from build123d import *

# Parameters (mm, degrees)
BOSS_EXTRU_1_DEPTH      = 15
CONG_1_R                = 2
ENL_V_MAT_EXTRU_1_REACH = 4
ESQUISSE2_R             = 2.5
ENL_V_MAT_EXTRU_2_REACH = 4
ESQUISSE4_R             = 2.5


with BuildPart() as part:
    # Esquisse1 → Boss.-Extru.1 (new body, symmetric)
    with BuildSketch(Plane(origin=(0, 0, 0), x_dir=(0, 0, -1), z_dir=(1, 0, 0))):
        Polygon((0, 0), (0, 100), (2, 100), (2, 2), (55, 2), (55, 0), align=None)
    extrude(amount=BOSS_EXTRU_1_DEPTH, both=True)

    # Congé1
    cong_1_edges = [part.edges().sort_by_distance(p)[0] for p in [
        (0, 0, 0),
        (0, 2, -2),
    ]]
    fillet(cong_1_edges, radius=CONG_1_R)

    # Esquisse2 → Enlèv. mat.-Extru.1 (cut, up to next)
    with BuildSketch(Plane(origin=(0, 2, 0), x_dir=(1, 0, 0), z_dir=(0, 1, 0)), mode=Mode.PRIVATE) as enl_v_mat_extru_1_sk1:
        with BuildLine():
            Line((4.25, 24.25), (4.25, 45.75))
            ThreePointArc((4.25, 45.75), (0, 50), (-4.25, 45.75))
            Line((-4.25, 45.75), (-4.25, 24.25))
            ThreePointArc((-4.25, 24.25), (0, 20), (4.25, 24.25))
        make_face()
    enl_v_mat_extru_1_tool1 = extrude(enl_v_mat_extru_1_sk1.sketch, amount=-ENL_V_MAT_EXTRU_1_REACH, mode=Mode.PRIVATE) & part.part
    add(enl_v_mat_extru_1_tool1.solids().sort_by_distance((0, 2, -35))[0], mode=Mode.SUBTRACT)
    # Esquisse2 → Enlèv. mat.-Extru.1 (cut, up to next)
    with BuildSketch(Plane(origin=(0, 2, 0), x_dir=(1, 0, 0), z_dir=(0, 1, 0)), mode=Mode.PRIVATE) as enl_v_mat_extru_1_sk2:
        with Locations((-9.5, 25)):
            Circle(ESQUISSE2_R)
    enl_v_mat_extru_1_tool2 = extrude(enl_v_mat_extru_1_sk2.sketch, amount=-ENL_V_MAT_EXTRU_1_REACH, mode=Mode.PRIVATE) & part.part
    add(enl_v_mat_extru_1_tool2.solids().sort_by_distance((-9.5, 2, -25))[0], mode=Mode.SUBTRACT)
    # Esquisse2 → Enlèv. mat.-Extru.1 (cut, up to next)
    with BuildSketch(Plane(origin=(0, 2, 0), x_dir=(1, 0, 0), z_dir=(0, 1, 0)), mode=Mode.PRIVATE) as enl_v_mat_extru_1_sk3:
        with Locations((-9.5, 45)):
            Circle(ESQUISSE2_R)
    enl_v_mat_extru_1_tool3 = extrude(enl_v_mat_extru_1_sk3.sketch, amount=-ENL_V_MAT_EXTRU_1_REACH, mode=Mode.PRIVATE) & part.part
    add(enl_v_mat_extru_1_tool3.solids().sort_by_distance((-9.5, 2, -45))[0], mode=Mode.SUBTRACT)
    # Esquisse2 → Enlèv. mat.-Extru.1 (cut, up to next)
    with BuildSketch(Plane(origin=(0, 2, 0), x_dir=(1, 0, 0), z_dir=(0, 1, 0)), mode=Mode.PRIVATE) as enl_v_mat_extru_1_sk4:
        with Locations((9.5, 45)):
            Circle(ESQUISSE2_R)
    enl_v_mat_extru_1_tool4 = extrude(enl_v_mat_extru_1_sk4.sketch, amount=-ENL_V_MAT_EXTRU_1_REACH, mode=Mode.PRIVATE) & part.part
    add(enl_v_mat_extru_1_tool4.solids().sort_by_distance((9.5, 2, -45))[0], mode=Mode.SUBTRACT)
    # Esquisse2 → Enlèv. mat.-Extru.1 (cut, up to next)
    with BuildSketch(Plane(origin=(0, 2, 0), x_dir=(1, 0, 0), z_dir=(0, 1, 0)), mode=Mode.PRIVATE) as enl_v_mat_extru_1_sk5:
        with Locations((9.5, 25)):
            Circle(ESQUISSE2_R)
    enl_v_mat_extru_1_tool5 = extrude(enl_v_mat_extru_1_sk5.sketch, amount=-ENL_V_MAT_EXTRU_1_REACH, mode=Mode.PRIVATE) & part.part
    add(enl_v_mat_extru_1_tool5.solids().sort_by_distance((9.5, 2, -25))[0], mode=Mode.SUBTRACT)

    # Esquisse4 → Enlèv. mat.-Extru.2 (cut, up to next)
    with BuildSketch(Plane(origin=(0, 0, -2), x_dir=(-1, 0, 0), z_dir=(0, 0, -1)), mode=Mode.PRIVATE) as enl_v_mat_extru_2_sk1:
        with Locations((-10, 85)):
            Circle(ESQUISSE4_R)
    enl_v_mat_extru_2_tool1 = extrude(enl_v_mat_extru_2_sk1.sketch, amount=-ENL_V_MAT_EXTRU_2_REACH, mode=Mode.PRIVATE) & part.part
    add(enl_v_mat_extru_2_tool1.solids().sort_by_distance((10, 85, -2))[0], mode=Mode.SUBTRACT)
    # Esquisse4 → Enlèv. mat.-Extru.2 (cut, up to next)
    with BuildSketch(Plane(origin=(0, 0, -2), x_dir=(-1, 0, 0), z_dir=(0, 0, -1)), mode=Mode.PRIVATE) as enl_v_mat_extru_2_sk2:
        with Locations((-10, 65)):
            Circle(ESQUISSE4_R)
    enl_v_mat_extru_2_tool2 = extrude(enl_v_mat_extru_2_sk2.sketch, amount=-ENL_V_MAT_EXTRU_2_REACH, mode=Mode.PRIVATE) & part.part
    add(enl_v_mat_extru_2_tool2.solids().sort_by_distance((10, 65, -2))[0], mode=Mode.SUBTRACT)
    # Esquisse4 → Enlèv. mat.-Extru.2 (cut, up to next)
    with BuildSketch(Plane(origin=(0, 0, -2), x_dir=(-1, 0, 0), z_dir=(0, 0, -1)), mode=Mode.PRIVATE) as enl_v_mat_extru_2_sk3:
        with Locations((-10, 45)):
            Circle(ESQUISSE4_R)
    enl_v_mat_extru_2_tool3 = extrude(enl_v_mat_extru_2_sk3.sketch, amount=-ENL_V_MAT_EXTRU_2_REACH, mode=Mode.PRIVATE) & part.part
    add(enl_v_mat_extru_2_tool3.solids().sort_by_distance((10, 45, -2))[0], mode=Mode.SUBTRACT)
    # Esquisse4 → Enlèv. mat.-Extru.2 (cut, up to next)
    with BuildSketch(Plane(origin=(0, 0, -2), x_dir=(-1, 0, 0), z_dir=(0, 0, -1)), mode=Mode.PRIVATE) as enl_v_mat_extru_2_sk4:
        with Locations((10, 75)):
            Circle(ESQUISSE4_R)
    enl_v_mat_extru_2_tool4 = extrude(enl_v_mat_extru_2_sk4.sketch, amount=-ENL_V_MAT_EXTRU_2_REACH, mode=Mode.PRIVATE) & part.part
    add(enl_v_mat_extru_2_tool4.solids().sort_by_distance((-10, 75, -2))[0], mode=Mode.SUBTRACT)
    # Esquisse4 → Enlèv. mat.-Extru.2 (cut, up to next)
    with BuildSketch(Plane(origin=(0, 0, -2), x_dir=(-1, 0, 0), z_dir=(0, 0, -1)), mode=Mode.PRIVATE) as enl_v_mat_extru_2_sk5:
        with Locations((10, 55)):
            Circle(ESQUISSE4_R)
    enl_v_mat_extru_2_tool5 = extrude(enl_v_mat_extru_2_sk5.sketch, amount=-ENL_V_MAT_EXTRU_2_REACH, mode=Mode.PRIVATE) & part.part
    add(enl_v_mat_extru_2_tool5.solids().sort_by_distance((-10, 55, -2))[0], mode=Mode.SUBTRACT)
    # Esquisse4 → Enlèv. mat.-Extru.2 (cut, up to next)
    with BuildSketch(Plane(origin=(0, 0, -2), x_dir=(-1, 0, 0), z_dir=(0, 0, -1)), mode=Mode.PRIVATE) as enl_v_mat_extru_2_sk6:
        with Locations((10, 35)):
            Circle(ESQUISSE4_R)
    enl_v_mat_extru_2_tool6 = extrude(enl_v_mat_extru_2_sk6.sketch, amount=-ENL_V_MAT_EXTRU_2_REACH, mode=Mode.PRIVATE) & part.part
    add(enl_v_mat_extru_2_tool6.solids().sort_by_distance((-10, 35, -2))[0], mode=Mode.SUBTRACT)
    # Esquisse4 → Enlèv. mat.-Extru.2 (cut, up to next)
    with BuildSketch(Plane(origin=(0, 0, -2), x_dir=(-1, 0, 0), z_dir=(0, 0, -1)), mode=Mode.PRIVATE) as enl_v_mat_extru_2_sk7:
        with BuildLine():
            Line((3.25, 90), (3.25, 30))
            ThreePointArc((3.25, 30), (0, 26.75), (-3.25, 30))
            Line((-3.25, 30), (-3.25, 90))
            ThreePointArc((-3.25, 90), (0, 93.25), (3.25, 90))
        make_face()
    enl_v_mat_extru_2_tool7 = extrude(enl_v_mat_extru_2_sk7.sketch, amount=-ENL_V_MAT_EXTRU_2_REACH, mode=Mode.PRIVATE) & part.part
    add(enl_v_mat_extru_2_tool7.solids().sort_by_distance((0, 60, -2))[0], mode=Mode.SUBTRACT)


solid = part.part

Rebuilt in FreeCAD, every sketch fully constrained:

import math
import FreeCAD as App
import Part
import Sketcher


def edges_at(feature, points):
    """Names of the edges that pass closest to the given points."""
    edges = feature.Shape.Edges
    near = lambda p: min(range(len(edges)), key=lambda i: edges[i].distToShape(Part.Vertex(*p))[0])
    return sorted({f"Edge{near(p) + 1}" for p in points})


def add_polygon(sketch, points):
    """Adds a closed chain of lines whose ends are joined by coincident constraints."""
    first, n = sketch.GeometryCount, len(points)
    for a, b in zip(points, points[1:] + points[:1]):
        sketch.addGeometry(Part.LineSegment(App.Vector(*a, 0), App.Vector(*b, 0)), False)
    for i in range(n):
        sketch.addConstraint(Sketcher.Constraint("Coincident", first + i, 2, first + (i + 1) % n, 1))

doc = App.newDocument("Part")
body = doc.addObject("PartDesign::Body", "Body")

# Sketch on YZ plane
sketch1 = body.newObject("Sketcher::SketchObject", "Sketch")
sketch1.AttachmentSupport = (doc.getObject("YZ_Plane"), [""])
sketch1.MapMode = "FlatFace"
add_polygon(sketch1, [(100, 0), (0, 0), (0, -55), (2, -55), (2, -2), (100, -2)])  # lines 0-5
sketch1.addConstraint([
    Sketcher.Constraint("Horizontal", 0),
    Sketcher.Constraint("Vertical", 1),
    Sketcher.Constraint("Horizontal", 2),
    Sketcher.Constraint("Vertical", 3),
    Sketcher.Constraint("Horizontal", 4),
    Sketcher.Constraint("Vertical", 5),
    Sketcher.Constraint("Coincident", 0, 2, -1, 1),
    Sketcher.Constraint("Equal", 2, 5),
    Sketcher.Constraint("DistanceX", 0, 2, 0, 1, 100.0),
    Sketcher.Constraint("DistanceX", 2, 1, 2, 2, 2.0),
    Sketcher.Constraint("DistanceY", 1, 2, 1, 1, 55.0),
])
pad1 = body.newObject("PartDesign::Pad", "Pad")
pad1.Profile = sketch1
pad1.Length = 30
pad1.Midplane = True
doc.recompute()

fillet = body.newObject("PartDesign::Fillet", "Fillet")
fillet.Base = (pad1, edges_at(pad1, [(0, 0, 0), (0, 2, -2)]))
fillet.Radius = 2

# Sketch on XZ plane
sketch2 = body.newObject("Sketcher::SketchObject", "Sketch001")
sketch2.AttachmentSupport = (doc.getObject("XZ_Plane"), [""])
sketch2.MapMode = "FlatFace"
sketch2.AttachmentOffset = App.Placement(App.Vector(0, 0, -2), App.Rotation())
sketch2.addGeometry([
    Part.LineSegment(App.Vector(4.2, -24.2, 0), App.Vector(4.2, -45.8, 0)),
    Part.ArcOfCircle(Part.Circle(App.Vector(0, -45.8, 0), App.Vector(0, 0, 1), 4.2), math.radians(180), math.radians(360)),
    Part.LineSegment(App.Vector(-4.2, -45.8, 0), App.Vector(-4.2, -24.2, 0)),
    Part.ArcOfCircle(Part.Circle(App.Vector(0, -24.2, 0), App.Vector(0, 0, 1), 4.2), math.radians(0), math.radians(180)),
], False)
sketch2.addConstraint([
    Sketcher.Constraint("Tangent", 0, 2, 1, 2),
    Sketcher.Constraint("Tangent", 1, 1, 2, 1),
    Sketcher.Constraint("Tangent", 2, 2, 3, 2),
    Sketcher.Constraint("Tangent", 3, 1, 0, 1),
    Sketcher.Constraint("Vertical", 0),
    Sketcher.Constraint("Vertical", 2),
    Sketcher.Constraint("PointOnObject", 1, 3, -2),
    Sketcher.Constraint("Radius", 1, 4.25),
    Sketcher.Constraint("DistanceY", 0, 2, 0, 1, 21.5),
    Sketcher.Constraint("DistanceY", 1, 3, -1, 1, 45.75),
])
pocket1 = body.newObject("PartDesign::Pocket", "Pocket")
pocket1.Profile = sketch2
pocket1.Type = "UpToFirst"
pocket1.Reversed = True

# Sketch on XZ plane
sketch3 = body.newObject("Sketcher::SketchObject", "Sketch002")
sketch3.AttachmentSupport = (doc.getObject("XZ_Plane"), [""])
sketch3.MapMode = "FlatFace"
sketch3.AttachmentOffset = App.Placement(App.Vector(0, 0, -2), App.Rotation())
sketch3.addGeometry(Part.Circle(App.Vector(-9.5, -25, 0), App.Vector(0, 0, 1), 2.5), False)
sketch3.addConstraint([
    Sketcher.Constraint("Diameter", 0, 5.0),
    Sketcher.Constraint("DistanceY", 0, 3, -1, 1, 25.0),
    Sketcher.Constraint("DistanceX", 0, 3, -1, 1, 9.5),
])
pocket2 = body.newObject("PartDesign::Pocket", "Pocket001")
pocket2.Profile = sketch3
pocket2.Type = "UpToFirst"
pocket2.Reversed = True

# Sketch on XZ plane
sketch4 = body.newObject("Sketcher::SketchObject", "Sketch003")
sketch4.AttachmentSupport = (doc.getObject("XZ_Plane"), [""])
sketch4.MapMode = "FlatFace"
sketch4.AttachmentOffset = App.Placement(App.Vector(0, 0, -2), App.Rotation())
sketch4.addGeometry(Part.Circle(App.Vector(-9.5, -45, 0), App.Vector(0, 0, 1), 2.5), False)
sketch4.addConstraint([
    Sketcher.Constraint("Diameter", 0, 5.0),
    Sketcher.Constraint("DistanceY", 0, 3, -1, 1, 45.0),
    Sketcher.Constraint("DistanceX", 0, 3, -1, 1, 9.5),
])
pocket3 = body.newObject("PartDesign::Pocket", "Pocket002")
pocket3.Profile = sketch4
pocket3.Type = "UpToFirst"
pocket3.Reversed = True

# Sketch on XZ plane
sketch5 = body.newObject("Sketcher::SketchObject", "Sketch004")
sketch5.AttachmentSupport = (doc.getObject("XZ_Plane"), [""])
sketch5.MapMode = "FlatFace"
sketch5.AttachmentOffset = App.Placement(App.Vector(0, 0, -2), App.Rotation())
sketch5.addGeometry(Part.Circle(App.Vector(9.5, -45, 0), App.Vector(0, 0, 1), 2.5), False)
sketch5.addConstraint([
    Sketcher.Constraint("Diameter", 0, 5.0),
    Sketcher.Constraint("DistanceY", 0, 3, -1, 1, 45.0),
    Sketcher.Constraint("DistanceX", -1, 1, 0, 3, 9.5),
])
pocket4 = body.newObject("PartDesign::Pocket", "Pocket003")
pocket4.Profile = sketch5
pocket4.Type = "UpToFirst"
pocket4.Reversed = True

# Sketch on XZ plane
sketch6 = body.newObject("Sketcher::SketchObject", "Sketch005")
sketch6.AttachmentSupport = (doc.getObject("XZ_Plane"), [""])
sketch6.MapMode = "FlatFace"
sketch6.AttachmentOffset = App.Placement(App.Vector(0, 0, -2), App.Rotation())
sketch6.addGeometry(Part.Circle(App.Vector(9.5, -25, 0), App.Vector(0, 0, 1), 2.5), False)
sketch6.addConstraint([
    Sketcher.Constraint("Diameter", 0, 5.0),
    Sketcher.Constraint("DistanceY", 0, 3, -1, 1, 25.0),
    Sketcher.Constraint("DistanceX", -1, 1, 0, 3, 9.5),
])
pocket5 = body.newObject("PartDesign::Pocket", "Pocket004")
pocket5.Profile = sketch6
pocket5.Type = "UpToFirst"
pocket5.Reversed = True

# Sketch on XY plane
sketch7 = body.newObject("Sketcher::SketchObject", "Sketch006")
sketch7.AttachmentSupport = (doc.getObject("XY_Plane"), [""])
sketch7.MapMode = "FlatFace"
sketch7.AttachmentOffset = App.Placement(App.Vector(0, 0, -2), App.Rotation())
sketch7.addGeometry(Part.Circle(App.Vector(10, 85, 0), App.Vector(0, 0, 1), 2.5), False)
sketch7.addConstraint([
    Sketcher.Constraint("Diameter", 0, 5.0),
    Sketcher.Constraint("DistanceX", -1, 1, 0, 3, 10.0),
    Sketcher.Constraint("DistanceY", -1, 1, 0, 3, 85.0),
])
pocket6 = body.newObject("PartDesign::Pocket", "Pocket005")
pocket6.Profile = sketch7
pocket6.Type = "UpToFirst"
pocket6.Reversed = True

# Sketch on XY plane
sketch8 = body.newObject("Sketcher::SketchObject", "Sketch007")
sketch8.AttachmentSupport = (doc.getObject("XY_Plane"), [""])
sketch8.MapMode = "FlatFace"
sketch8.AttachmentOffset = App.Placement(App.Vector(0, 0, -2), App.Rotation())
sketch8.addGeometry(Part.Circle(App.Vector(10, 65, 0), App.Vector(0, 0, 1), 2.5), False)
sketch8.addConstraint([
    Sketcher.Constraint("Diameter", 0, 5.0),
    Sketcher.Constraint("DistanceX", -1, 1, 0, 3, 10.0),
    Sketcher.Constraint("DistanceY", -1, 1, 0, 3, 65.0),
])
pocket7 = body.newObject("PartDesign::Pocket", "Pocket006")
pocket7.Profile = sketch8
pocket7.Type = "UpToFirst"
pocket7.Reversed = True

# Sketch on XY plane
sketch9 = body.newObject("Sketcher::SketchObject", "Sketch008")
sketch9.AttachmentSupport = (doc.getObject("XY_Plane"), [""])
sketch9.MapMode = "FlatFace"
sketch9.AttachmentOffset = App.Placement(App.Vector(0, 0, -2), App.Rotation())
sketch9.addGeometry(Part.Circle(App.Vector(10, 45, 0), App.Vector(0, 0, 1), 2.5), False)
sketch9.addConstraint([
    Sketcher.Constraint("Diameter", 0, 5.0),
    Sketcher.Constraint("DistanceX", -1, 1, 0, 3, 10.0),
    Sketcher.Constraint("DistanceY", -1, 1, 0, 3, 45.0),
])
pocket8 = body.newObject("PartDesign::Pocket", "Pocket007")
pocket8.Profile = sketch9
pocket8.Type = "UpToFirst"
pocket8.Reversed = True

# Sketch on XY plane
sketch10 = body.newObject("Sketcher::SketchObject", "Sketch009")
sketch10.AttachmentSupport = (doc.getObject("XY_Plane"), [""])
sketch10.MapMode = "FlatFace"
sketch10.AttachmentOffset = App.Placement(App.Vector(0, 0, -2), App.Rotation())
sketch10.addGeometry(Part.Circle(App.Vector(-10, 75, 0), App.Vector(0, 0, 1), 2.5), False)
sketch10.addConstraint([
    Sketcher.Constraint("Diameter", 0, 5.0),
    Sketcher.Constraint("DistanceX", 0, 3, -1, 1, 10.0),
    Sketcher.Constraint("DistanceY", -1, 1, 0, 3, 75.0),
])
pocket9 = body.newObject("PartDesign::Pocket", "Pocket008")
pocket9.Profile = sketch10
pocket9.Type = "UpToFirst"
pocket9.Reversed = True

# Sketch on XY plane
sketch11 = body.newObject("Sketcher::SketchObject", "Sketch010")
sketch11.AttachmentSupport = (doc.getObject("XY_Plane"), [""])
sketch11.MapMode = "FlatFace"
sketch11.AttachmentOffset = App.Placement(App.Vector(0, 0, -2), App.Rotation())
sketch11.addGeometry(Part.Circle(App.Vector(-10, 55, 0), App.Vector(0, 0, 1), 2.5), False)
sketch11.addConstraint([
    Sketcher.Constraint("Diameter", 0, 5.0),
    Sketcher.Constraint("DistanceX", 0, 3, -1, 1, 10.0),
    Sketcher.Constraint("DistanceY", -1, 1, 0, 3, 55.0),
])
pocket10 = body.newObject("PartDesign::Pocket", "Pocket009")
pocket10.Profile = sketch11
pocket10.Type = "UpToFirst"
pocket10.Reversed = True

# Sketch on XY plane
sketch12 = body.newObject("Sketcher::SketchObject", "Sketch011")
sketch12.AttachmentSupport = (doc.getObject("XY_Plane"), [""])
sketch12.MapMode = "FlatFace"
sketch12.AttachmentOffset = App.Placement(App.Vector(0, 0, -2), App.Rotation())
sketch12.addGeometry(Part.Circle(App.Vector(-10, 35, 0), App.Vector(0, 0, 1), 2.5), False)
sketch12.addConstraint([
    Sketcher.Constraint("Diameter", 0, 5.0),
    Sketcher.Constraint("DistanceX", 0, 3, -1, 1, 10.0),
    Sketcher.Constraint("DistanceY", -1, 1, 0, 3, 35.0),
])
pocket11 = body.newObject("PartDesign::Pocket", "Pocket010")
pocket11.Profile = sketch12
pocket11.Type = "UpToFirst"
pocket11.Reversed = True

# Sketch on XY plane
sketch13 = body.newObject("Sketcher::SketchObject", "Sketch012")
sketch13.AttachmentSupport = (doc.getObject("XY_Plane"), [""])
sketch13.MapMode = "FlatFace"
sketch13.AttachmentOffset = App.Placement(App.Vector(0, 0, -2), App.Rotation())
sketch13.addGeometry([
    Part.LineSegment(App.Vector(-3.2, 30, 0), App.Vector(-3.2, 90, 0)),
    Part.ArcOfCircle(Part.Circle(App.Vector(0, 90, 0), App.Vector(0, 0, 1), 3.2), math.radians(0), math.radians(180)),
    Part.LineSegment(App.Vector(3.2, 90, 0), App.Vector(3.2, 30, 0)),
    Part.ArcOfCircle(Part.Circle(App.Vector(0, 30, 0), App.Vector(0, 0, 1), 3.2), math.radians(180), math.radians(360)),
], False)
sketch13.addConstraint([
    Sketcher.Constraint("Tangent", 0, 2, 1, 2),
    Sketcher.Constraint("Tangent", 1, 1, 2, 1),
    Sketcher.Constraint("Tangent", 2, 2, 3, 2),
    Sketcher.Constraint("Tangent", 3, 1, 0, 1),
    Sketcher.Constraint("Vertical", 0),
    Sketcher.Constraint("Vertical", 2),
    Sketcher.Constraint("PointOnObject", 1, 3, -2),
    Sketcher.Constraint("DistanceY", 0, 1, 0, 2, 60.0),
    Sketcher.Constraint("Radius", 1, 3.25),
    Sketcher.Constraint("DistanceY", -1, 1, 1, 3, 90.0),
])
pocket12 = body.newObject("PartDesign::Pocket", "Pocket011")
pocket12.Profile = sketch13
pocket12.Type = "UpToFirst"
pocket12.Reversed = True

doc.recompute()
